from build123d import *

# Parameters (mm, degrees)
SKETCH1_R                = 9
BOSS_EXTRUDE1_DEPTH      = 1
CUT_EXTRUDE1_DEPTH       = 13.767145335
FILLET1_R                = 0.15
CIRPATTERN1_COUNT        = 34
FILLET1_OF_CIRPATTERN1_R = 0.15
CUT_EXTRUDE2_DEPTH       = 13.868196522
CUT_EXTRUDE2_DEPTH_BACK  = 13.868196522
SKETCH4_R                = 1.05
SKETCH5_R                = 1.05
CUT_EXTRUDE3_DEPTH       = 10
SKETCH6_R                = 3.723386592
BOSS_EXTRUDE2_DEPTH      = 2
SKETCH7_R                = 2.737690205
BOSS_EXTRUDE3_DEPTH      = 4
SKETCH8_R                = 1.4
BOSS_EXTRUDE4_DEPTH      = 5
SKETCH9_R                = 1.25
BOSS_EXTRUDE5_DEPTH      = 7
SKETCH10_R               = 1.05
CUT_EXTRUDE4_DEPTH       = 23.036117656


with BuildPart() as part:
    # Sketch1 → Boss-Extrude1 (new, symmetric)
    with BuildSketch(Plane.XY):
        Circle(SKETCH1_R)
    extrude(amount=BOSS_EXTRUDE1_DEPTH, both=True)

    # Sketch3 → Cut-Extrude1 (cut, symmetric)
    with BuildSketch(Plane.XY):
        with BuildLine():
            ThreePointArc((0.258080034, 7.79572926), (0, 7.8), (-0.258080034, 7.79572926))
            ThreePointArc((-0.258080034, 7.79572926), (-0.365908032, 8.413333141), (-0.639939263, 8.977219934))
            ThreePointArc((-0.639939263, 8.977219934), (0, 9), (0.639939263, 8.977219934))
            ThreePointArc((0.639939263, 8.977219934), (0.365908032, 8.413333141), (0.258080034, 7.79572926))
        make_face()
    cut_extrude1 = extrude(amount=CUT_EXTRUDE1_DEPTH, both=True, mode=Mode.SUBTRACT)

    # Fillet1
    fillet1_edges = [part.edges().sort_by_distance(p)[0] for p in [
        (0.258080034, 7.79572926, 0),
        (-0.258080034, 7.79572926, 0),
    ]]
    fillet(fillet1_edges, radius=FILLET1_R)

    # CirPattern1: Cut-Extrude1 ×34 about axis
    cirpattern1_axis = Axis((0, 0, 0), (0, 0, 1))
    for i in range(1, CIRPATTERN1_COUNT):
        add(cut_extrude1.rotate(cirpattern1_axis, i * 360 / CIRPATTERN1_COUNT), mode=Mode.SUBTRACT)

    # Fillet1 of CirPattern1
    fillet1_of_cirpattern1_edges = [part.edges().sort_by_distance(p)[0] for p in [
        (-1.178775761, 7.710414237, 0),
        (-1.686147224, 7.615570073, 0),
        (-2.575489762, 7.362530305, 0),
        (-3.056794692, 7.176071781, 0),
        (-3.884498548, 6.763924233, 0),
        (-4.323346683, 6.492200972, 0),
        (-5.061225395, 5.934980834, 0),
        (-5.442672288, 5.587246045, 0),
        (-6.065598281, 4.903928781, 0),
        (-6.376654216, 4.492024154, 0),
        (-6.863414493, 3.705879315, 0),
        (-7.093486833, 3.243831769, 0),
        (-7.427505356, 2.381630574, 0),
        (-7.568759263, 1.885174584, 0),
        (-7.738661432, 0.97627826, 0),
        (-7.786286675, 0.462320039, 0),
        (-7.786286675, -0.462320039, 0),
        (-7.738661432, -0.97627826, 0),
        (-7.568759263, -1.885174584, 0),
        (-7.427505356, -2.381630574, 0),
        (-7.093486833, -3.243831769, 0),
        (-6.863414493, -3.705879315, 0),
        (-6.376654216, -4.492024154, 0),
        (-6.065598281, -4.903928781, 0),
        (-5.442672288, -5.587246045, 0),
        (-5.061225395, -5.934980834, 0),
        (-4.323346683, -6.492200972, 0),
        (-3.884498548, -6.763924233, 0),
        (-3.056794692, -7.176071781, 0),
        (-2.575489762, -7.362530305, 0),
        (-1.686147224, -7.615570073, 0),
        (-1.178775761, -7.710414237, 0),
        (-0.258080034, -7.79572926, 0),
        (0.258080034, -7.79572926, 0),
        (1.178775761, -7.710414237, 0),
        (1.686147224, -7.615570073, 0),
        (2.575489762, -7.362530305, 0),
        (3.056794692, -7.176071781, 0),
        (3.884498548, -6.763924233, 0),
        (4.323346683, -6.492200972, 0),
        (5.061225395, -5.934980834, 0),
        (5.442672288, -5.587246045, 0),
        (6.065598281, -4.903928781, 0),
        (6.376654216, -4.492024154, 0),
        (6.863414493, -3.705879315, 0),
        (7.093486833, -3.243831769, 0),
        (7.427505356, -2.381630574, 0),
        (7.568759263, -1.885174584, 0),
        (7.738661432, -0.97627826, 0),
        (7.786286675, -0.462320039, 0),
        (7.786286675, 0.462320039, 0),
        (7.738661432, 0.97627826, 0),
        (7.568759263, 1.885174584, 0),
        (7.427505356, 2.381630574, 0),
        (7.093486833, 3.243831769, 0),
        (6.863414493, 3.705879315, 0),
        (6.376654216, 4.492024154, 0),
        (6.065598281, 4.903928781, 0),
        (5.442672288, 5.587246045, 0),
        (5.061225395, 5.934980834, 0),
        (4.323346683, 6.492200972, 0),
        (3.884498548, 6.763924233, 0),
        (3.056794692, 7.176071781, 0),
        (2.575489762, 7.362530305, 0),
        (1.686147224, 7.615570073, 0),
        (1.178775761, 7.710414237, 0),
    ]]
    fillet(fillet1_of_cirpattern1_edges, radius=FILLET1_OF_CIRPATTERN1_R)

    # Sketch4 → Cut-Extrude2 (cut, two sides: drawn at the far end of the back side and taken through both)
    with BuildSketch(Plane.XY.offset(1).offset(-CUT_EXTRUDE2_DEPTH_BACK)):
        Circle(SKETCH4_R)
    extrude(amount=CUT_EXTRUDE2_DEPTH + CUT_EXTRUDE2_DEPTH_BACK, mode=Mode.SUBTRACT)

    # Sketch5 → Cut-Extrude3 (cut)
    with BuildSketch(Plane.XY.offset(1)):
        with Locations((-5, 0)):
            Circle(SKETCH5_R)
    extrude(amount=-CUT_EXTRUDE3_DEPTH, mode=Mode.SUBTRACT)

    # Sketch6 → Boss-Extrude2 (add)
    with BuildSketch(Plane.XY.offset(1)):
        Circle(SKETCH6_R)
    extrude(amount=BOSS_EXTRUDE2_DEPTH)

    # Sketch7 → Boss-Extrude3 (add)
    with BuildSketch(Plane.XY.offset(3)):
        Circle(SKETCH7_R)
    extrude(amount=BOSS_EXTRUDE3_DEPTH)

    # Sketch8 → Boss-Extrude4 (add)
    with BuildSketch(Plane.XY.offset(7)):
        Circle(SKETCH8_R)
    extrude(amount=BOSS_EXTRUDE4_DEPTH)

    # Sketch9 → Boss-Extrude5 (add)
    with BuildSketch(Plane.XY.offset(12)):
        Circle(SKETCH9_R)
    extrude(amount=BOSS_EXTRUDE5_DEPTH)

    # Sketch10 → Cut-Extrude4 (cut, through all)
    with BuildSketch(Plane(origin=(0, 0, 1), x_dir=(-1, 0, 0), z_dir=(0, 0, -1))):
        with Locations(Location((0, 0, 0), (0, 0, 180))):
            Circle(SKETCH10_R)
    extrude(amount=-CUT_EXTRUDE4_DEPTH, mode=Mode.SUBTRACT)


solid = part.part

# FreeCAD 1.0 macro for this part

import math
import FreeCAD as App
import Part
import Sketcher
Q = App.Units.Quantity


def edges_at(feature, points):
    """Names of the edges that pass closest to the given points."""
    edges = feature.Shape.Edges
    near = lambda p: min(range(len(edges)), key=lambda i: edges[i].distToShape(Part.Vertex(*p))[0])
    return sorted({f"Edge{near(p) + 1}" for p in points})

doc = App.newDocument("Part")
body = doc.addObject("PartDesign::Body", "Body")

sketch1 = body.newObject("Sketcher::SketchObject", "Sketch")
sketch1.AttachmentSupport = (doc.getObject("XY_Plane"), [""])
sketch1.MapMode = "FlatFace"
sketch1.addGeometry(Part.Circle(App.Vector(0, 0, 0), App.Vector(0, 0, 1), 9), False)
sketch1.addConstraint(Sketcher.Constraint("Coincident", 0, 3, -1, 1))
sketch1.addConstraint(Sketcher.Constraint("Diameter", 0, Q("18 mm")))
pad1 = body.newObject("PartDesign::Pad", "Pad")
pad1.Profile = sketch1
pad1.Length = 2
pad1.Midplane = True

sketch2 = body.newObject("Sketcher::SketchObject", "Sketch001")
sketch2.AttachmentSupport = (doc.getObject("XY_Plane"), [""])
sketch2.MapMode = "FlatFace"
sketch2.addGeometry(Part.ArcOfCircle(Part.Circle(App.Vector(0, 0, 0), App.Vector(0, 0, 1), 7.8), math.radians(88.103898), math.radians(91.896102)), False)
sketch2.addGeometry(Part.ArcOfCircle(Part.Circle(App.Vector(2.507178, 7.721272, 0), App.Vector(0, 0, 1), 2.25033), math.radians(146.07431), math.radians(178.103898)), False)
sketch2.addGeometry(Part.ArcOfCircle(Part.Circle(App.Vector(0, 0, 0), App.Vector(0, 0, 1), 9), math.radians(85.922579), math.radians(94.077421)), False)
sketch2.addGeometry(Part.ArcOfCircle(Part.Circle(App.Vector(-2.507178, 7.721272, 0), App.Vector(0, 0, 1), 2.25033), math.radians(1.896102), math.radians(33.92569)), False)
sketch2.addConstraint(Sketcher.Constraint("Coincident", 0, 1, 1, 2))
sketch2.addConstraint(Sketcher.Constraint("Coincident", 1, 1, 2, 1))
sketch2.addConstraint(Sketcher.Constraint("Coincident", 2, 2, 3, 2))
sketch2.addConstraint(Sketcher.Constraint("Coincident", 3, 1, 0, 2))
sketch2.addConstraint(Sketcher.Constraint("Coincident", 0, 3, -1, 1))
sketch2.addConstraint(Sketcher.Constraint("Coincident", 2, 3, -1, 1))
sketch2.addConstraint(Sketcher.Constraint("Equal", 1, 3))
sketch2.addConstraint(Sketcher.Constraint("Symmetric", 1, 3, 3, 3, -2))
sketch2.addConstraint(Sketcher.Constraint("Radius", 2, Q("9 mm")))
sketch2.addConstraint(Sketcher.Constraint("Radius", 0, Q("7.8 mm")))
sketch2.addConstraint(Sketcher.Constraint("Radius", 1, Q("2.25033 mm")))
sketch2.addConstraint(Sketcher.Constraint("DistanceX", -1, 1, 0, 1, Q("0.25808 mm")))
sketch2.addConstraint(Sketcher.Constraint("DistanceX", -1, 1, 1, 1, Q("0.639939 mm")))
pocket1 = body.newObject("PartDesign::Pocket", "Pocket")
pocket1.Profile = sketch2
pocket1.Length = 27.534291
pocket1.Midplane = True
doc.recompute()

fillet = body.newObject("PartDesign::Fillet", "Fillet")
fillet.Base = (pocket1, edges_at(pocket1, [(0.258, 7.796, 0), (-0.258, 7.796, 0)]))
fillet.Radius = 0.15
doc.recompute()

polarpattern = body.newObject("PartDesign::PolarPattern", "PolarPattern")
polarpattern.Originals = [pocket1]
polarpattern.Axis = (doc.getObject("Z_Axis"), [""])
polarpattern.Angle = 360
polarpattern.Occurrences = 34
body.Tip = polarpattern
doc.recompute()

fillet2 = body.newObject("PartDesign::Fillet", "Fillet001")
fillet2.Base = (polarpattern, edges_at(polarpattern, [
    (-1.179, 7.71, 0),
    (-1.686, 7.616, 0),
    (-2.575, 7.363, 0),
    (-3.057, 7.176, 0),
    (-3.884, 6.764, 0),
    (-4.323, 6.492, 0),
    (-5.061, 5.935, 0),
    (-5.443, 5.587, 0),
    (-6.066, 4.904, 0),
    (-6.377, 4.492, 0),
    (-6.863, 3.706, 0),
    (-7.093, 3.244, 0),
    (-7.428, 2.382, 0),
    (-7.569, 1.885, 0),
    (-7.739, 0.976, 0),
    (-7.786, 0.462, 0),
    (-7.786, -0.462, 0),
    (-7.739, -0.976, 0),
    (-7.569, -1.885, 0),
    (-7.428, -2.382, 0),
    (-7.093, -3.244, 0),
    (-6.863, -3.706, 0),
    (-6.377, -4.492, 0),
    (-6.066, -4.904, 0),
    (-5.443, -5.587, 0),
    (-5.061, -5.935, 0),
    (-4.323, -6.492, 0),
    (-3.884, -6.764, 0),
    (-3.057, -7.176, 0),
    (-2.575, -7.363, 0),
    (-1.686, -7.616, 0),
    (-1.179, -7.71, 0),
    (-0.258, -7.796, 0),
    (0.258, -7.796, 0),
    (1.179, -7.71, 0),
    (1.686, -7.616, 0),
    (2.575, -7.363, 0),
    (3.057, -7.176, 0),
    (3.884, -6.764, 0),
    (4.323, -6.492, 0),
    (5.061, -5.935, 0),
    (5.443, -5.587, 0),
    (6.066, -4.904, 0),
    (6.377, -4.492, 0),
    (6.863, -3.706, 0),
    (7.093, -3.244, 0),
    (7.428, -2.382, 0),
    (7.569, -1.885, 0),
    (7.739, -0.976, 0),
    (7.786, -0.462, 0),
    (7.786, 0.462, 0),
    (7.739, 0.976, 0),
    (7.569, 1.885, 0),
    (7.428, 2.382, 0),
    (7.093, 3.244, 0),
    (6.863, 3.706, 0),
    (6.377, 4.492, 0),
    (6.066, 4.904, 0),
    (5.443, 5.587, 0),
    (5.061, 5.935, 0),
    (4.323, 6.492, 0),
    (3.884, 6.764, 0),
    (3.057, 7.176, 0),
    (2.575, 7.363, 0),
    (1.686, 7.616, 0),
    (1.179, 7.71, 0),
]))
fillet2.Radius = 0.15

sketch3 = body.newObject("Sketcher::SketchObject", "Sketch002")
sketch3.AttachmentSupport = (doc.getObject("XY_Plane"), [""])
sketch3.MapMode = "FlatFace"
sketch3.AttachmentOffset = App.Placement(App.Vector(0, 0, 1), App.Rotation())
sketch3.addGeometry(Part.Circle(App.Vector(0, 0, 0), App.Vector(0, 0, 1), 1.05), False)
sketch3.addConstraint(Sketcher.Constraint("Coincident", 0, 3, -1, 1))
sketch3.addConstraint(Sketcher.Constraint("Diameter", 0, Q("2.1 mm")))
pocket2 = body.newObject("PartDesign::Pocket", "Pocket001")
pocket2.Profile = sketch3
pocket2.Type = "ThroughAll"
pocket2.Midplane = True

sketch4 = body.newObject("Sketcher::SketchObject", "Sketch003")
sketch4.AttachmentSupport = (doc.getObject("XY_Plane"), [""])
sketch4.MapMode = "FlatFace"
sketch4.AttachmentOffset = App.Placement(App.Vector(0, 0, 1), App.Rotation())
sketch4.addGeometry(Part.Circle(App.Vector(-5, 0, 0), App.Vector(0, 0, 1), 1.05), False)
sketch4.addConstraint(Sketcher.Constraint("PointOnObject", 0, 3, -1))
sketch4.addConstraint(Sketcher.Constraint("Diameter", 0, Q("2.1 mm")))
sketch4.addConstraint(Sketcher.Constraint("DistanceX", 0, 3, -1, 1, Q("5 mm")))
pocket3 = body.newObject("PartDesign::Pocket", "Pocket002")
pocket3.Profile = sketch4
pocket3.Length = 10

sketch5 = body.newObject("Sketcher::SketchObject", "Sketch004")
sketch5.AttachmentSupport = (doc.getObject("XY_Plane"), [""])
sketch5.MapMode = "FlatFace"
sketch5.AttachmentOffset = App.Placement(App.Vector(0, 0, 1), App.Rotation())
sketch5.addGeometry(Part.Circle(App.Vector(0, 0, 0), App.Vector(0, 0, 1), 3.723387), False)
sketch5.addConstraint(Sketcher.Constraint("Coincident", 0, 3, -1, 1))
sketch5.addConstraint(Sketcher.Constraint("Diameter", 0, Q("7.446773 mm")))
pad2 = body.newObject("PartDesign::Pad", "Pad001")
pad2.Profile = sketch5
pad2.Length = 2

sketch6 = body.newObject("Sketcher::SketchObject", "Sketch005")
sketch6.AttachmentSupport = (doc.getObject("XY_Plane"), [""])
sketch6.MapMode = "FlatFace"
sketch6.AttachmentOffset = App.Placement(App.Vector(0, 0, 3), App.Rotation())
sketch6.addGeometry(Part.Circle(App.Vector(0, 0, 0), App.Vector(0, 0, 1), 2.73769), False)
sketch6.addConstraint(Sketcher.Constraint("Coincident", 0, 3, -1, 1))
sketch6.addConstraint(Sketcher.Constraint("Diameter", 0, Q("5.47538 mm")))
pad3 = body.newObject("PartDesign::Pad", "Pad002")
pad3.Profile = sketch6
pad3.Length = 4

sketch7 = body.newObject("Sketcher::SketchObject", "Sketch006")
sketch7.AttachmentSupport = (doc.getObject("XY_Plane"), [""])
sketch7.MapMode = "FlatFace"
sketch7.AttachmentOffset = App.Placement(App.Vector(0, 0, 7), App.Rotation())
sketch7.addGeometry(Part.Circle(App.Vector(0, 0, 0), App.Vector(0, 0, 1), 1.4), False)
sketch7.addConstraint(Sketcher.Constraint("Coincident", 0, 3, -1, 1))
sketch7.addConstraint(Sketcher.Constraint("Diameter", 0, Q("2.8 mm")))
pad4 = body.newObject("PartDesign::Pad", "Pad003")
pad4.Profile = sketch7
pad4.Length = 5

sketch8 = body.newObject("Sketcher::SketchObject", "Sketch007")
sketch8.AttachmentSupport = (doc.getObject("XY_Plane"), [""])
sketch8.MapMode = "FlatFace"
sketch8.AttachmentOffset = App.Placement(App.Vector(0, 0, 12), App.Rotation())
sketch8.addGeometry(Part.Circle(App.Vector(0, 0, 0), App.Vector(0, 0, 1), 1.25), False)
sketch8.addConstraint(Sketcher.Constraint("Coincident", 0, 3, -1, 1))
sketch8.addConstraint(Sketcher.Constraint("Diameter", 0, Q("2.5 mm")))
pad5 = body.newObject("PartDesign::Pad", "Pad004")
pad5.Profile = sketch8
pad5.Length = 7

sketch9 = body.newObject("Sketcher::SketchObject", "Sketch008")
sketch9.AttachmentSupport = (doc.getObject("XY_Plane"), [""])
sketch9.MapMode = "FlatFace"
sketch9.AttachmentOffset = App.Placement(App.Vector(0, 0, 1), App.Rotation())
sketch9.addGeometry(Part.Circle(App.Vector(0, 0, 0), App.Vector(0, 0, 1), 1.05), False)
sketch9.addConstraint(Sketcher.Constraint("Coincident", 0, 3, -1, 1))
sketch9.addConstraint(Sketcher.Constraint("Diameter", 0, Q("2.1 mm")))
pocket4 = body.newObject("PartDesign::Pocket", "Pocket003")
pocket4.Profile = sketch9
pocket4.Type = "ThroughAll"
pocket4.Reversed = True

doc.recompute()
